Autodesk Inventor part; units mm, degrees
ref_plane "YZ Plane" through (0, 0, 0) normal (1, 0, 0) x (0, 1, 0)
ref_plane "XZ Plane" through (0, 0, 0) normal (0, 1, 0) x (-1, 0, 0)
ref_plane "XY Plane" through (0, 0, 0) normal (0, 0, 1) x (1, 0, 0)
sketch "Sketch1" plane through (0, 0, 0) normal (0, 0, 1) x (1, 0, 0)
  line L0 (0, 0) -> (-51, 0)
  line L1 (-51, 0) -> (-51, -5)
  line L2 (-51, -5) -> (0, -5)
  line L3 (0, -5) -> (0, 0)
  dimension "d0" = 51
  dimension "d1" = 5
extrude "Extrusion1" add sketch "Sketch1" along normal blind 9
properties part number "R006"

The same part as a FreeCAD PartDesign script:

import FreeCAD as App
import Part
import Sketcher

doc = App.newDocument("Part")
body = doc.addObject("PartDesign::Body", "Body")

# Sketch on XY plane
sketch1 = doc.addObject("Sketcher::SketchObject", "Sketch")
body.addObject(sketch1)
sketch1.AttachmentSupport = (doc.XY_Plane, [""])
sketch1.MapMode = "FlatFace"
sketch1.addGeometry(Part.LineSegment(App.Vector(0, -5, 0), App.Vector(0, 0, 0)), False)
sketch1.addGeometry(Part.LineSegment(App.Vector(0, 0, 0), App.Vector(-51, 0, 0)), False)
sketch1.addGeometry(Part.LineSegment(App.Vector(-51, 0, 0), App.Vector(-51, -5, 0)), False)
sketch1.addGeometry(Part.LineSegment(App.Vector(-51, -5, 0), App.Vector(0, -5, 0)), False)
sketch1.addConstraint(Sketcher.Constraint("Coincident", 0, 2, 1, 1))
sketch1.addConstraint(Sketcher.Constraint("Coincident", 1, 2, 2, 1))
sketch1.addConstraint(Sketcher.Constraint("Coincident", 2, 2, 3, 1))
sketch1.addConstraint(Sketcher.Constraint("Coincident", 3, 2, 0, 1))
sketch1.addConstraint(Sketcher.Constraint("Vertical", 0))
sketch1.addConstraint(Sketcher.Constraint("Horizontal", 1))
sketch1.addConstraint(Sketcher.Constraint("Vertical", 2))
sketch1.addConstraint(Sketcher.Constraint("Horizontal", 3))
sketch1.addConstraint(Sketcher.Constraint("Coincident", 0, 2, -1, 1))
sketch1.addConstraint(Sketcher.Constraint("DistanceX", 1, 2, 1, 1, 51.0))
sketch1.addConstraint(Sketcher.Constraint("DistanceY", 0, 1, 0, 2, 5.0))
pad1 = doc.addObject("PartDesign::Pad", "Pad")
body.addObject(pad1)
pad1.Profile = sketch1
pad1.Length = 9

doc.recompute()
